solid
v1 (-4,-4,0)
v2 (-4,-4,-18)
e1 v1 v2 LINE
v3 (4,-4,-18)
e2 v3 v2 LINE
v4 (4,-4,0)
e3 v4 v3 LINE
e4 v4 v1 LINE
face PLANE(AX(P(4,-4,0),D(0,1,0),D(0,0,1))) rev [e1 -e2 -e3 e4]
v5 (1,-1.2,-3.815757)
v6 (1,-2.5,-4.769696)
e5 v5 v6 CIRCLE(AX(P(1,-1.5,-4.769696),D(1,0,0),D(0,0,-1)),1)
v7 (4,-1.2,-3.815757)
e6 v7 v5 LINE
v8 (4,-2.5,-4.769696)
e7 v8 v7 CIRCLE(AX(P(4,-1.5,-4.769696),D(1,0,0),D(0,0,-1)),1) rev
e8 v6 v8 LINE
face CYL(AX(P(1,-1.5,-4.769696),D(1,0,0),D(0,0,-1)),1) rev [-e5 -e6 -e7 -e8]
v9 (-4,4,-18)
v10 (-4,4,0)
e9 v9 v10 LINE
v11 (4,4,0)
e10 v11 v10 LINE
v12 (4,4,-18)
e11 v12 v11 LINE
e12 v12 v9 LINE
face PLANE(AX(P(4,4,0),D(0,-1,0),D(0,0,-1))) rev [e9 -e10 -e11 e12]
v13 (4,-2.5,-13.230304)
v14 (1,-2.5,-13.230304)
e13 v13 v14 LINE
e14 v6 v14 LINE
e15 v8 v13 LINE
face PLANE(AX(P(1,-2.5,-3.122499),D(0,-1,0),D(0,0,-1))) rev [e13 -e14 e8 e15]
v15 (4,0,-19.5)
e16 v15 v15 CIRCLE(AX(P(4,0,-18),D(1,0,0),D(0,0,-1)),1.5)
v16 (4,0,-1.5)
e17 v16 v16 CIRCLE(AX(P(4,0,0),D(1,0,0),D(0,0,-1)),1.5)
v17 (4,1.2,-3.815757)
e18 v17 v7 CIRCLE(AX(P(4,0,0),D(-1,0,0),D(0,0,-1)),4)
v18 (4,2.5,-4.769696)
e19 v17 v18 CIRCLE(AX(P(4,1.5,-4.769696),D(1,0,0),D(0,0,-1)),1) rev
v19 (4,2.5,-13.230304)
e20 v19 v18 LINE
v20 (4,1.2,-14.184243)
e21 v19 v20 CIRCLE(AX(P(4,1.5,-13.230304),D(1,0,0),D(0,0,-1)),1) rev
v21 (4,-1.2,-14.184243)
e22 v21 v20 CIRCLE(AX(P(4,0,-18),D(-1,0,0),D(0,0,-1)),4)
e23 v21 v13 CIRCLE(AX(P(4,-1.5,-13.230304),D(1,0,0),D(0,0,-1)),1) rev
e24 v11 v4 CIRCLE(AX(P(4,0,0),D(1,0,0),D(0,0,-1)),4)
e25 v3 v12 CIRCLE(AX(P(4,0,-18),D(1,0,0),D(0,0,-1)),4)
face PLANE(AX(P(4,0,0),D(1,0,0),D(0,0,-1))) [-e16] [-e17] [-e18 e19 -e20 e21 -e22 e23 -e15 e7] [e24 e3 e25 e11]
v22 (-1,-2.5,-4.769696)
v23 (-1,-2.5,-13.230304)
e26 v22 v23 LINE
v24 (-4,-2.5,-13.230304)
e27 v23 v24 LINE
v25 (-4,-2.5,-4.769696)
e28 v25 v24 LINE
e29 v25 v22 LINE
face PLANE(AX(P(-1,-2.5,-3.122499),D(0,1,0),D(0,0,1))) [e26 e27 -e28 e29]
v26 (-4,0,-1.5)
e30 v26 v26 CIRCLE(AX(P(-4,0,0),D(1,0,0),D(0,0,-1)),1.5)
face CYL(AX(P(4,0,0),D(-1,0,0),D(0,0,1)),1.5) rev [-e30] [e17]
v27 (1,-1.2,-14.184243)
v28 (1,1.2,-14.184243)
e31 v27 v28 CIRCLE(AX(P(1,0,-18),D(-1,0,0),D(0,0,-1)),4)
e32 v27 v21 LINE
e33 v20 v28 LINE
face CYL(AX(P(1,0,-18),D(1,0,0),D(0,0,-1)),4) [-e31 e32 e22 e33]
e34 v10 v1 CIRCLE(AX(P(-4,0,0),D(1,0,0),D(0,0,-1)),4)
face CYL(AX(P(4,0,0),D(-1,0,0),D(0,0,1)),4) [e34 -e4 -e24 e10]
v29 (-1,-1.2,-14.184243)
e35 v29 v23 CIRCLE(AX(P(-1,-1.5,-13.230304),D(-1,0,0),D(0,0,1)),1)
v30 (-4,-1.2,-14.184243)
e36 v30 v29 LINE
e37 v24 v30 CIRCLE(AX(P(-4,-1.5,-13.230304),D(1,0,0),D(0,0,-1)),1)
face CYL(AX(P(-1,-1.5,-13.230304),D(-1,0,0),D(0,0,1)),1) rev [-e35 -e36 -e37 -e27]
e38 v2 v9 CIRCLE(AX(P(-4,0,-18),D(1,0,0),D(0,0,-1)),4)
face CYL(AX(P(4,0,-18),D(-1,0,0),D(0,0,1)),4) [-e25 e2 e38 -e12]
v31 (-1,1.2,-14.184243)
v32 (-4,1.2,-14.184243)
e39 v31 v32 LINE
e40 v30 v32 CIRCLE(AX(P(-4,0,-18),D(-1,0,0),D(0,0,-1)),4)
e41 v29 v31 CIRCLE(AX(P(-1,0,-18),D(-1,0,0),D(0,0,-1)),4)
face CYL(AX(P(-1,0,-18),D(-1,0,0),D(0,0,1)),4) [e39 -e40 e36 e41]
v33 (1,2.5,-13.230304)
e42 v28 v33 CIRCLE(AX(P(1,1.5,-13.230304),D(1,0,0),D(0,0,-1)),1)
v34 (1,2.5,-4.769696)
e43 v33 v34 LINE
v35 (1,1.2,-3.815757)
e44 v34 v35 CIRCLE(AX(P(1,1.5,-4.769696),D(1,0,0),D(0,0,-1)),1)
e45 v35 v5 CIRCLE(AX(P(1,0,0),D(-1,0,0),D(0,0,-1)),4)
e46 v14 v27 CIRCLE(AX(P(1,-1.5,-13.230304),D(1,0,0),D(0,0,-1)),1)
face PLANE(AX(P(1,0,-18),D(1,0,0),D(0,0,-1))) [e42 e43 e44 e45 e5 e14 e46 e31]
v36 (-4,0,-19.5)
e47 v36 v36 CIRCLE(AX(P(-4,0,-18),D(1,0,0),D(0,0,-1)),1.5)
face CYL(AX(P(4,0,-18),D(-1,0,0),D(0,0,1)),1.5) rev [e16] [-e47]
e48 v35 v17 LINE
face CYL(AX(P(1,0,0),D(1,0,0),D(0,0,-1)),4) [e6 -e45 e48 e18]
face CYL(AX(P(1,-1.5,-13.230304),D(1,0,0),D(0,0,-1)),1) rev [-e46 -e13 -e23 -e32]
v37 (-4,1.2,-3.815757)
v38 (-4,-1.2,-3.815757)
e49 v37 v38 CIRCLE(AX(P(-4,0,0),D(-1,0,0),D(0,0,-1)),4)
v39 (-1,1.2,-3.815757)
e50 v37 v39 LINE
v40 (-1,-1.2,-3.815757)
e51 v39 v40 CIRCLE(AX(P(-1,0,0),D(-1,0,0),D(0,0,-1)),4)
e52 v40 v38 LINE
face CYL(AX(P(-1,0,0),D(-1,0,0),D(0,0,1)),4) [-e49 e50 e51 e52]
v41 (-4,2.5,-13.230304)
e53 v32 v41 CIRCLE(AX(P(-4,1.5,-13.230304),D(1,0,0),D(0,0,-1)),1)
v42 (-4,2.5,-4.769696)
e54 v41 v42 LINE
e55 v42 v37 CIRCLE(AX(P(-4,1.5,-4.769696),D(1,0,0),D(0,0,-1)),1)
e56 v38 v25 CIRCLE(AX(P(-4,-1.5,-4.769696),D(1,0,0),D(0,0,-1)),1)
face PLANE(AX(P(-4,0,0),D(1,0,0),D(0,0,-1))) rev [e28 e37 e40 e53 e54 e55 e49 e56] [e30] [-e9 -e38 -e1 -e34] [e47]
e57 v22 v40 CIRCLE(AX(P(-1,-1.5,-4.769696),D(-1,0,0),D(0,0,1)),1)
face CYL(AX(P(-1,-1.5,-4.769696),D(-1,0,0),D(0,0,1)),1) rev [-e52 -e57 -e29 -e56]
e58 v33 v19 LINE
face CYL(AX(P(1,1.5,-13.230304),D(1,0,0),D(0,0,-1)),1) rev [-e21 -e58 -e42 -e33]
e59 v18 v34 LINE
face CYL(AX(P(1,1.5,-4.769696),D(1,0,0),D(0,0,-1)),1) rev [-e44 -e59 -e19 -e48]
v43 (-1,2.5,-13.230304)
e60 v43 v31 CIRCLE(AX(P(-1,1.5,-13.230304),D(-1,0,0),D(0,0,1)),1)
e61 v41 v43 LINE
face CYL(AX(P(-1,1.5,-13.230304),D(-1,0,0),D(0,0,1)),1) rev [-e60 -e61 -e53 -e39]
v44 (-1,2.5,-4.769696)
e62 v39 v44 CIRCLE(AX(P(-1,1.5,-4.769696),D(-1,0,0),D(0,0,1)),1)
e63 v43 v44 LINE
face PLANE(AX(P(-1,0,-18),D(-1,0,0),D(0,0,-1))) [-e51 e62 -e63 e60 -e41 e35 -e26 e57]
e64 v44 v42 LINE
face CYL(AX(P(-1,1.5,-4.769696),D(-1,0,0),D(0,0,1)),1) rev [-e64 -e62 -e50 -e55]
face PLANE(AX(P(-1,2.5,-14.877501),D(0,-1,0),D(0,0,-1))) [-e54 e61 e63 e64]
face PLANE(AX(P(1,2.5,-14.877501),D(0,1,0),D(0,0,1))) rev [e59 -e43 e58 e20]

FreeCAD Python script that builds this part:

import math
import FreeCAD as App
import Part
import Sketcher


def edges_at(feature, points):
    """Names of the edges that pass closest to the given points."""
    edges = feature.Shape.Edges
    near = lambda p: min(range(len(edges)), key=lambda i: edges[i].distToShape(Part.Vertex(*p))[0])
    return sorted({f"Edge{near(p) + 1}" for p in points})

doc = App.newDocument("Part")
body = doc.addObject("PartDesign::Body", "Body")

sketch1 = doc.addObject("Sketcher::SketchObject", "Sketch")
body.addObject(sketch1)
sketch1.AttachmentSupport = (doc.YZ_Plane, [""])
sketch1.MapMode = "FlatFace"
sketch1.addGeometry(Part.LineSegment(App.Vector(4, -18, 0), App.Vector(4, 0, 0)), False)
sketch1.addGeometry(Part.ArcOfCircle(Part.Circle(App.Vector(0, 0, 0), App.Vector(0, 0, 1), 4), math.radians(0), math.radians(180)), False)
sketch1.addGeometry(Part.LineSegment(App.Vector(-4, 0, 0), App.Vector(-4, -18, 0)), False)
sketch1.addGeometry(Part.ArcOfCircle(Part.Circle(App.Vector(0, -18, 0), App.Vector(0, 0, 1), 4), math.radians(180), math.radians(360)), False)
sketch1.addGeometry(Part.Circle(App.Vector(0, -18, 0), App.Vector(0, 0, 1), 1.5), False)
sketch1.addGeometry(Part.Circle(App.Vector(0, 0, 0), App.Vector(0, 0, 1), 1.5), False)
sketch1.addConstraint(Sketcher.Constraint("Tangent", 0, 2, 1, 1))
sketch1.addConstraint(Sketcher.Constraint("Tangent", 1, 2, 2, 1))
sketch1.addConstraint(Sketcher.Constraint("Tangent", 2, 2, 3, 1))
sketch1.addConstraint(Sketcher.Constraint("Tangent", 3, 2, 0, 1))
sketch1.addConstraint(Sketcher.Constraint("Vertical", 0))
sketch1.addConstraint(Sketcher.Constraint("Vertical", 2))
sketch1.addConstraint(Sketcher.Constraint("Coincident", 1, 3, -1, 1))
sketch1.addConstraint(Sketcher.Constraint("Coincident", 5, 3, -1, 1))
sketch1.addConstraint(Sketcher.Constraint("Coincident", 4, 3, 3, 3))
sketch1.addConstraint(Sketcher.Constraint("Equal", 4, 5))
sketch1.addConstraint(Sketcher.Constraint("Diameter", 4, 3.0))
sketch1.addConstraint(Sketcher.Constraint("Radius", 1, 4.0))
sketch1.addConstraint(Sketcher.Constraint("DistanceY", 0, 1, 0, 2, 18.0))
pad1 = doc.addObject("PartDesign::Pad", "Pad")
body.addObject(pad1)
pad1.Profile = sketch1
pad1.Length = 8
pad1.Midplane = True

sketch2 = doc.addObject("Sketcher::SketchObject", "Sketch001")
body.addObject(sketch2)
sketch2.AttachmentSupport = (doc.YZ_Plane, [""])
sketch2.MapMode = "FlatFace"
sketch2.AttachmentOffset = App.Placement(App.Vector(0, 0, 4), App.Rotation())
sketch2.addGeometry(Part.LineSegment(App.Vector(-2.5, -3.1, 0), App.Vector(-2.5, -14.9, 0)), False)
sketch2.addGeometry(Part.ArcOfCircle(Part.Circle(App.Vector(0, -18, 0), App.Vector(0, 0, 1), 4), math.radians(51), math.radians(129)), False)
sketch2.addGeometry(Part.LineSegment(App.Vector(2.5, -14.9, 0), App.Vector(2.5, -3.1, 0)), False)
sketch2.addGeometry(Part.ArcOfCircle(Part.Circle(App.Vector(0, 0, 0), App.Vector(0, 0, 1), 4), math.radians(-129), math.radians(-51)), False)
sketch2.addConstraint(Sketcher.Constraint("Coincident", 0, 2, 1, 2))
sketch2.addConstraint(Sketcher.Constraint("Coincident", 1, 1, 2, 1))
sketch2.addConstraint(Sketcher.Constraint("Coincident", 2, 2, 3, 2))
sketch2.addConstraint(Sketcher.Constraint("Coincident", 3, 1, 0, 1))
sketch2.addConstraint(Sketcher.Constraint("Vertical", 0))
sketch2.addConstraint(Sketcher.Constraint("Vertical", 2))
sketch2.addConstraint(Sketcher.Constraint("Coincident", 3, 3, -1, 1))
sketch2.addConstraint(Sketcher.Constraint("Equal", 1, 3))
sketch2.addConstraint(Sketcher.Constraint("Symmetric", 0, 2, 1, 1, -2))
sketch2.addConstraint(Sketcher.Constraint("Radius", 1, 4.0))
sketch2.addConstraint(Sketcher.Constraint("DistanceY", 1, 3, -1, 1, 18.0))
sketch2.addConstraint(Sketcher.Constraint("DistanceX", 0, 2, 1, 1, 5.0))
pocket1 = doc.addObject("PartDesign::Pocket", "Pocket")
body.addObject(pocket1)
pocket1.Profile = sketch2
pocket1.Length = 3
doc.recompute()

mirrored = doc.addObject("PartDesign::Mirrored", "Mirrored")
body.addObject(mirrored)
mirrored.Originals = [pocket1]
mirrored.MirrorPlane = (doc.YZ_Plane, [""])
body.Tip = mirrored
doc.recompute()

fillet = doc.addObject("PartDesign::Fillet", "Fillet")
body.addObject(fillet)
fillet.Base = (mirrored, edges_at(mirrored, [
    (2.5, 2.5, -14.878),
    (2.5, -2.5, -14.878),
    (2.5, -2.5, -3.122),
    (2.5, 2.5, -3.122),
    (-2.5, -2.5, -14.878),
    (-2.5, 2.5, -14.878),
    (-2.5, 2.5, -3.122),
    (-2.5, -2.5, -3.122),
]))
fillet.Radius = 1

doc.recompute()
